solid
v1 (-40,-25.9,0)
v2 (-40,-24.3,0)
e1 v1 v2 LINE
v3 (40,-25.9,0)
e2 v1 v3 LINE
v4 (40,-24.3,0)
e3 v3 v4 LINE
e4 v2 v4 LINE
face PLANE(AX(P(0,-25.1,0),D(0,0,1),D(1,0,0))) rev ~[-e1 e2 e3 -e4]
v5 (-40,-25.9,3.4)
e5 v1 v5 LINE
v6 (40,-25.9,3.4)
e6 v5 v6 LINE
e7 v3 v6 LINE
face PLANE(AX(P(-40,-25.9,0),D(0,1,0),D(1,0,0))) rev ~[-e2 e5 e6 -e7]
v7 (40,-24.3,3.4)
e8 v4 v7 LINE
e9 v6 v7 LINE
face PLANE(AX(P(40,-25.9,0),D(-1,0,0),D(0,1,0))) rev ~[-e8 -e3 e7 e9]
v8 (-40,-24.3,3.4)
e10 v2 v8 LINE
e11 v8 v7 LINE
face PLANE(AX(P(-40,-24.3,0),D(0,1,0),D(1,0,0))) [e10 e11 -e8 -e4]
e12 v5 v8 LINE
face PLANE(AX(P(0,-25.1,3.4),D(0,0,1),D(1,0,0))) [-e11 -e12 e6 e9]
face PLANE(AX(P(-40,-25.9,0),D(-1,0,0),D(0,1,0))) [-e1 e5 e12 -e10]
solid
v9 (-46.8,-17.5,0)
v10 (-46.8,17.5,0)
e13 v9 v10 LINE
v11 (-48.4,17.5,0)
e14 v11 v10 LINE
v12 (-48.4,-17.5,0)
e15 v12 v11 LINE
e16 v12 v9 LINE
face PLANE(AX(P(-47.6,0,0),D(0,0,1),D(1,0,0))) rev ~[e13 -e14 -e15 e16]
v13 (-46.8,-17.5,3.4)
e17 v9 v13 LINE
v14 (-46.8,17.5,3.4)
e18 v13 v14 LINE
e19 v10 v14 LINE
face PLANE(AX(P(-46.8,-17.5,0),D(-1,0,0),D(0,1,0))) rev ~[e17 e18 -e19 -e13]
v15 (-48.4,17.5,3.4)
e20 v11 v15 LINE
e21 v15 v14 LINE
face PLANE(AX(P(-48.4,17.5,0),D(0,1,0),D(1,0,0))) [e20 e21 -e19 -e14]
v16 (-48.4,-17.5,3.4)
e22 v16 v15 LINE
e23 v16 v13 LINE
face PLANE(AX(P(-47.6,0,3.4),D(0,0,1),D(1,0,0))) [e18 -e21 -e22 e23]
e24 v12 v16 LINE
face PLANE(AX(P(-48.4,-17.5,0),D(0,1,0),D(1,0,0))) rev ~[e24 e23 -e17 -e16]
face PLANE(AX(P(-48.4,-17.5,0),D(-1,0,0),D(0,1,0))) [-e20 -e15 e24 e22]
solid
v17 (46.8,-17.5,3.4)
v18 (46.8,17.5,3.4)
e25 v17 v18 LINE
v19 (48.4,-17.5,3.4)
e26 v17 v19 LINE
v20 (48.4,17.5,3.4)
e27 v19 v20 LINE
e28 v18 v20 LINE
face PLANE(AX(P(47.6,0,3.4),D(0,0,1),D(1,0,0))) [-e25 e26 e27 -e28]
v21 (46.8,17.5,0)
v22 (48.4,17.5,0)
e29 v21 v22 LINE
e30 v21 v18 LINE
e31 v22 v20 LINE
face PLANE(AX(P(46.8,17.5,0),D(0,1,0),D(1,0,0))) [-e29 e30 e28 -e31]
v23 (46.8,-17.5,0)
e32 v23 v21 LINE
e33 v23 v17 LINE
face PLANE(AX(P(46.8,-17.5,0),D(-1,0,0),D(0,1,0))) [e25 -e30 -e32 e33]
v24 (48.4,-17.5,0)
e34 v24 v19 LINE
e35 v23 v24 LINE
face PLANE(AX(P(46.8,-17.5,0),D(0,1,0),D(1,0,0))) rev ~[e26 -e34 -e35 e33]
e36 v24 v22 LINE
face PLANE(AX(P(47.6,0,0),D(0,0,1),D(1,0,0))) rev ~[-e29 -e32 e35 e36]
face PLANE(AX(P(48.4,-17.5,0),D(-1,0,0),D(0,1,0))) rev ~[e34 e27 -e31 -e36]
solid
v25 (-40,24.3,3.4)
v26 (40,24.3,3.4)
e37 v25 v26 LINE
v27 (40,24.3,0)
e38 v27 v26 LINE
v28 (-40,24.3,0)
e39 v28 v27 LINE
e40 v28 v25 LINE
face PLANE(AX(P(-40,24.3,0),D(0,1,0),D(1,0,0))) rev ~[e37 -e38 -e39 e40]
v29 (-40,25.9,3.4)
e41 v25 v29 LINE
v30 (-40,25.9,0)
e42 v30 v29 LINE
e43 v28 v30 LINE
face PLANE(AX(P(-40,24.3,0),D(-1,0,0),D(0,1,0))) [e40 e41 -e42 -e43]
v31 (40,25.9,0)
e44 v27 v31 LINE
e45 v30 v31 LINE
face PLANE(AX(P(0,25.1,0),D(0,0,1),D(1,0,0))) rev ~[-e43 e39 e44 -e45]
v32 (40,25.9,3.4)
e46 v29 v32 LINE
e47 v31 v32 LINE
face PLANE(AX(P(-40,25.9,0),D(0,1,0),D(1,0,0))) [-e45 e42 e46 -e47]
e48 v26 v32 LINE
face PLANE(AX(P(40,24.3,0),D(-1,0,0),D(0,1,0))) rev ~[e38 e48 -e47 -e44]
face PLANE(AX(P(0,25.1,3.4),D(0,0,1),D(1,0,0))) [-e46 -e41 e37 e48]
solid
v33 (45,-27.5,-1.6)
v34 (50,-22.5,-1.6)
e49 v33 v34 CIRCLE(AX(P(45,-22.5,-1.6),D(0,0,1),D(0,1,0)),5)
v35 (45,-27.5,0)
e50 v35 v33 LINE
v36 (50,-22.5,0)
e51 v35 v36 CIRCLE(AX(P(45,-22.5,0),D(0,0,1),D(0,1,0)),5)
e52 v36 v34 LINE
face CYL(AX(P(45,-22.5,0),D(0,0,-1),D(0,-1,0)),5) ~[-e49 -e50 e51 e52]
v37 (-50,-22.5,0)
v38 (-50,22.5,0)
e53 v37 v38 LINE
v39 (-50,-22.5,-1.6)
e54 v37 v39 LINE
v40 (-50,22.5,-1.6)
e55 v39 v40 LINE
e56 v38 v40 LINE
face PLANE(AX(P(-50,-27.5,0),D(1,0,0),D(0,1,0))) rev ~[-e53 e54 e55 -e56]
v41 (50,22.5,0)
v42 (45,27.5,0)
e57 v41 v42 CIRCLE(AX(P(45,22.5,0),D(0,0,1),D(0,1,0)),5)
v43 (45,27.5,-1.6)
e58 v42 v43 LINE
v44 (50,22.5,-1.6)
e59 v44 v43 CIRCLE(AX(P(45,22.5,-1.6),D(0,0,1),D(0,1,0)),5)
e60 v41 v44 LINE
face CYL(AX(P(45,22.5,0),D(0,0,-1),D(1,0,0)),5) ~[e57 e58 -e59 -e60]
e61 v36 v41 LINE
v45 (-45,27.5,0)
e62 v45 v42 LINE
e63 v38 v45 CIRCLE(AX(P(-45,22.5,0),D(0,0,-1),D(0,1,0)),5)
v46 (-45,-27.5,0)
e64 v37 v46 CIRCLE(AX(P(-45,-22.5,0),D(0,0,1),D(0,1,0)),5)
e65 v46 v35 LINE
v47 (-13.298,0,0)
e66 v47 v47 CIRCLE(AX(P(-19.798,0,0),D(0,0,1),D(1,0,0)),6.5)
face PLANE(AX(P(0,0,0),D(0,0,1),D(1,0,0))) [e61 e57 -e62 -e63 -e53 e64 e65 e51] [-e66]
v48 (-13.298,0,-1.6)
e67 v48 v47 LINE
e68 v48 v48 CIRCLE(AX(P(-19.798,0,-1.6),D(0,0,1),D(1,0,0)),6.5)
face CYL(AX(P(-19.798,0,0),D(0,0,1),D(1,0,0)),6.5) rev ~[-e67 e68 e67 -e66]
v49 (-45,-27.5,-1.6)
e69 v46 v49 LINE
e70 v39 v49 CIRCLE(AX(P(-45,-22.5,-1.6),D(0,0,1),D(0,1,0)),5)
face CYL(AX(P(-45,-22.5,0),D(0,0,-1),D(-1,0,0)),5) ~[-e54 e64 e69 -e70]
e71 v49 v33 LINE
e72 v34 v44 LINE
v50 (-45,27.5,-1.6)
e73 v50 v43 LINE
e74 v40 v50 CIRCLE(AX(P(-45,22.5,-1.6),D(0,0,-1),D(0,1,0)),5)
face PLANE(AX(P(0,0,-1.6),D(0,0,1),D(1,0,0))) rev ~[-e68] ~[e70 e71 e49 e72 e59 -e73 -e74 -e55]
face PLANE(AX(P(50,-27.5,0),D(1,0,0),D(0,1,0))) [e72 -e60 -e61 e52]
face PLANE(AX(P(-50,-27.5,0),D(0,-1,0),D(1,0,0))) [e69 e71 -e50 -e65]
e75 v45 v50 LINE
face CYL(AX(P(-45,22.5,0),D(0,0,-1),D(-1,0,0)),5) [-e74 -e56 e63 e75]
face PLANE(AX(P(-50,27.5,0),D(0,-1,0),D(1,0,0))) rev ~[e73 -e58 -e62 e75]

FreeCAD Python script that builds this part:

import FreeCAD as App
import Part
import Sketcher
from FreeCAD import Vector


def edges_at(feature, points):
    """Names of the edges that pass closest to the given points."""
    edges = feature.Shape.Edges
    near = lambda p: min(range(len(edges)), key=lambda i: edges[i].distToShape(Part.Vertex(*p))[0])
    return sorted({f"Edge{near(p) + 1}" for p in points})

doc = App.newDocument("Part")
body = doc.addObject("PartDesign::Body", "Body")
body.AllowCompound = True

sketch1 = body.newObject("Sketcher::SketchObject", "Sketch")
sketch1.AttachmentSupport = (doc.getObject("XY_Plane"), [""])
sketch1.MapMode = "FlatFace"
sketch1.addGeometry([
    Part.LineSegment(Vector(46.8, 17.5, 0), Vector(46.8, -17.5, 0)),
    Part.LineSegment(Vector(46.8, -17.5, 0), Vector(48.4, -17.5, 0)),
    Part.LineSegment(Vector(48.4, -17.5, 0), Vector(48.4, 17.5, 0)),
    Part.LineSegment(Vector(48.4, 17.5, 0), Vector(46.8, 17.5, 0)),
    Part.LineSegment(Vector(-40, -24.3, 0), Vector(-40, -25.9, 0)),
    Part.LineSegment(Vector(-40, -25.9, 0), Vector(40, -25.9, 0)),
    Part.LineSegment(Vector(40, -25.9, 0), Vector(40, -24.3, 0)),
    Part.LineSegment(Vector(40, -24.3, 0), Vector(-40, -24.3, 0)),
    Part.LineSegment(Vector(-40, 25.9, 0), Vector(-40, 24.3, 0)),
    Part.LineSegment(Vector(-40, 24.3, 0), Vector(40, 24.3, 0)),
    Part.LineSegment(Vector(40, 24.3, 0), Vector(40, 25.9, 0)),
    Part.LineSegment(Vector(40, 25.9, 0), Vector(-40, 25.9, 0)),
    Part.LineSegment(Vector(-48.4, 17.5, 0), Vector(-48.4, -17.5, 0)),
    Part.LineSegment(Vector(-48.4, -17.5, 0), Vector(-46.8, -17.5, 0)),
    Part.LineSegment(Vector(-46.8, -17.5, 0), Vector(-46.8, 17.5, 0)),
    Part.LineSegment(Vector(-46.8, 17.5, 0), Vector(-48.4, 17.5, 0)),
], False)
sketch1.addConstraint([
    Sketcher.Constraint("Coincident", 0, 2, 1, 1),
    Sketcher.Constraint("Coincident", 1, 2, 2, 1),
    Sketcher.Constraint("Coincident", 2, 2, 3, 1),
    Sketcher.Constraint("Coincident", 3, 2, 0, 1),
    Sketcher.Constraint("Coincident", 4, 2, 5, 1),
    Sketcher.Constraint("Coincident", 5, 2, 6, 1),
    Sketcher.Constraint("Coincident", 6, 2, 7, 1),
    Sketcher.Constraint("Coincident", 7, 2, 4, 1),
    Sketcher.Constraint("Coincident", 8, 2, 9, 1),
    Sketcher.Constraint("Coincident", 9, 2, 10, 1),
    Sketcher.Constraint("Coincident", 10, 2, 11, 1),
    Sketcher.Constraint("Coincident", 11, 2, 8, 1),
    Sketcher.Constraint("Coincident", 12, 2, 13, 1),
    Sketcher.Constraint("Coincident", 13, 2, 14, 1),
    Sketcher.Constraint("Coincident", 14, 2, 15, 1),
    Sketcher.Constraint("Coincident", 15, 2, 12, 1),
    Sketcher.Constraint("Vertical", 0),
    Sketcher.Constraint("Horizontal", 1),
    Sketcher.Constraint("Vertical", 2),
    Sketcher.Constraint("Horizontal", 3),
    Sketcher.Constraint("Vertical", 4),
    Sketcher.Constraint("Horizontal", 5),
    Sketcher.Constraint("Vertical", 6),
    Sketcher.Constraint("Horizontal", 7),
    Sketcher.Constraint("Vertical", 8),
    Sketcher.Constraint("Horizontal", 9),
    Sketcher.Constraint("Vertical", 10),
    Sketcher.Constraint("Horizontal", 11),
    Sketcher.Constraint("Vertical", 12),
    Sketcher.Constraint("Horizontal", 13),
    Sketcher.Constraint("Vertical", 14),
    Sketcher.Constraint("Horizontal", 15),
    Sketcher.Constraint("Symmetric", 6, 2, 8, 2, -1, 1),
    Sketcher.Constraint("Symmetric", 4, 2, 10, 2, -1, 1),
    Sketcher.Constraint("Symmetric", 2, 2, 12, 2, -1, 1),
    Sketcher.Constraint("Symmetric", 0, 2, 14, 2, -1, 1),
    Sketcher.Constraint("Horizontal", 1, 2, 12, 2),
    Sketcher.Constraint("Vertical", 7, 2, 8, 2),
    Sketcher.Constraint("Equal", 15, 4),
    Sketcher.Constraint("DistanceX", 5, 1, 5, 2, 80.0),
    Sketcher.Constraint("DistanceY", 0, 2, 0, 1, 35.0),
    Sketcher.Constraint("DistanceX", 1, 1, 1, 2, 1.6),
    Sketcher.Constraint("DistanceX", -1, 1, 0, 2, 46.8),
    Sketcher.Constraint("DistanceY", 4, 2, -1, 1, 25.9),
])
pad1 = body.newObject("PartDesign::Pad", "Pad")
pad1.Profile = sketch1
pad1.Length = 3.4
body2 = doc.addObject("PartDesign::Body", "Body001")

sketch2 = body2.newObject("Sketcher::SketchObject", "Sketch001")
sketch2.AttachmentSupport = (doc.getObject("XY_Plane001"), [""])
sketch2.MapMode = "FlatFace"
sketch2.addGeometry([
    Part.LineSegment(Vector(-50, 28, 0), Vector(-50, -28, 0)),
    Part.LineSegment(Vector(-50, -28, 0), Vector(50, -28, 0)),
    Part.LineSegment(Vector(50, -28, 0), Vector(50, 28, 0)),
    Part.LineSegment(Vector(50, 28, 0), Vector(-50, 28, 0)),
], False)
sketch2.addConstraint([
    Sketcher.Constraint("Coincident", 0, 2, 1, 1),
    Sketcher.Constraint("Coincident", 1, 2, 2, 1),
    Sketcher.Constraint("Coincident", 2, 2, 3, 1),
    Sketcher.Constraint("Coincident", 3, 2, 0, 1),
    Sketcher.Constraint("Vertical", 0),
    Sketcher.Constraint("Horizontal", 1),
    Sketcher.Constraint("Vertical", 2),
    Sketcher.Constraint("Horizontal", 3),
    Sketcher.Constraint("Symmetric", 0, 2, 2, 2, -1, 1),
    Sketcher.Constraint("DistanceX", 1, 1, 1, 2, 100.0),
    Sketcher.Constraint("DistanceY", 0, 2, 0, 1, 55.0),
])
pad2 = body2.newObject("PartDesign::Pad", "Pad001")
pad2.Profile = sketch2
pad2.Length = 1.6
pad2.Reversed = True
doc.recompute()

fillet = body2.newObject("PartDesign::Fillet", "Fillet")
fillet.Base = (pad2, edges_at(pad2, [
    (-50, -27.5, -0.8),
    (50, -27.5, -0.8),
    (50, 27.5, -0.8),
    (-50, 27.5, -0.8),
]))
fillet.Radius = 5

sketch3 = body2.newObject("Sketcher::SketchObject", "Sketch002")
sketch3.AttachmentSupport = (doc.getObject("XY_Plane001"), [""])
sketch3.MapMode = "FlatFace"
sketch3.addGeometry(Part.Circle(Vector(-20, 0, 0), Vector(0, 0, 1), 6), False)
sketch3.addConstraint([
    Sketcher.Constraint("PointOnObject", 0, 3, -1),
    Sketcher.Constraint("Diameter", 0, 13.0),
    Sketcher.Constraint("DistanceX", 0, 3, -1, 1, 19.798),
])
pocket1 = body2.newObject("PartDesign::Pocket", "Pocket")
pocket1.Profile = sketch3
pocket1.Length = 5
pocket1.Midplane = True

doc.recompute()
